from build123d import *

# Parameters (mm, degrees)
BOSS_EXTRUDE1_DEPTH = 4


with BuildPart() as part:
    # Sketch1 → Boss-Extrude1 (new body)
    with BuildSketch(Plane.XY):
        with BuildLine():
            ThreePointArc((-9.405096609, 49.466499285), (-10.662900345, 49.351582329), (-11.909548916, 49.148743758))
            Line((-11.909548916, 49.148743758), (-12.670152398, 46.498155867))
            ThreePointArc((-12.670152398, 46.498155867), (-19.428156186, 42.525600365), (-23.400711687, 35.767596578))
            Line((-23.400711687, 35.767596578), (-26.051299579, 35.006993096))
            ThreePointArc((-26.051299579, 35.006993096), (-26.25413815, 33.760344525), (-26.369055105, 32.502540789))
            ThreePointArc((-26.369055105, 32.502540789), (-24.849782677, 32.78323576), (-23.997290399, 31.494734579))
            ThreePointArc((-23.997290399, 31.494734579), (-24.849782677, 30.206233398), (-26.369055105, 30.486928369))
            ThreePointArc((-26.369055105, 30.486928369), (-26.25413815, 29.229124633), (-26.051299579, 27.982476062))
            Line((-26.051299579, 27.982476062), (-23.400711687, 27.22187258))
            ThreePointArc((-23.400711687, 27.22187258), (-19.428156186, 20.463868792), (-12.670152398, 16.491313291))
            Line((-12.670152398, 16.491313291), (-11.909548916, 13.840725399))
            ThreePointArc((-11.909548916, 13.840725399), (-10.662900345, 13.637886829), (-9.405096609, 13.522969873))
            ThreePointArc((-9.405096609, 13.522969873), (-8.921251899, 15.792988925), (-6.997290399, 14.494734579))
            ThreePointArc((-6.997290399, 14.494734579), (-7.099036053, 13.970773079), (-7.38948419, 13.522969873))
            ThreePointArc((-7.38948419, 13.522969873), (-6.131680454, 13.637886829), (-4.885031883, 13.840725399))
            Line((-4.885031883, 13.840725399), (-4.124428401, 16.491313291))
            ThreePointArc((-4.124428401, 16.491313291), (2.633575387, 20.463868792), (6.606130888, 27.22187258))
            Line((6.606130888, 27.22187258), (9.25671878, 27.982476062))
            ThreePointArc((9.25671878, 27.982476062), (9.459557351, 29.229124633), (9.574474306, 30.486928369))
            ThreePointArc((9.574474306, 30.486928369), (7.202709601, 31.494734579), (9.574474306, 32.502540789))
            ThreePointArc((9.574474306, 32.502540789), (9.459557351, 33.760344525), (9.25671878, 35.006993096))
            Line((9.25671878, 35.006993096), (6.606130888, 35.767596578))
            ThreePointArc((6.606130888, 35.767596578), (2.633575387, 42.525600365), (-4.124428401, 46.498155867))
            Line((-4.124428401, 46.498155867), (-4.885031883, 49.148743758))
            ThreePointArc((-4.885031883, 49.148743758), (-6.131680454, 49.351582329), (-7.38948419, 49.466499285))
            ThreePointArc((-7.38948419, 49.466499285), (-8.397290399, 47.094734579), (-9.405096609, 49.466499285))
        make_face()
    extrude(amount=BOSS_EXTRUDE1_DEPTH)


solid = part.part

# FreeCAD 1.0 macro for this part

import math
import FreeCAD as App
import Part
import Sketcher

doc = App.newDocument("Part")
body = doc.addObject("PartDesign::Body", "Body")

# Sketch on XY plane
sketch1 = doc.addObject("Sketcher::SketchObject", "Sketch")
body.addObject(sketch1)
sketch1.AttachmentSupport = (doc.XY_Plane, [""])
sketch1.MapMode = "FlatFace"
sketch1.addGeometry(Part.ArcOfCircle(Part.Circle(App.Vector(-8.4, 31.5, 0), App.Vector(0, 0, 1), 18), math.radians(93.21), math.radians(101.25)), False)
sketch1.addGeometry(Part.LineSegment(App.Vector(-11.9, 49.1, 0), App.Vector(-12.7, 46.5, 0)), False)
sketch1.addGeometry(Part.ArcOfCircle(Part.Circle(App.Vector(-8.4, 31.5, 0), App.Vector(0, 0, 1), 15.6), math.radians(106), math.radians(164)), False)
sketch1.addGeometry(Part.LineSegment(App.Vector(-23.4, 35.8, 0), App.Vector(-26.1, 35, 0)), False)
sketch1.addGeometry(Part.ArcOfCircle(Part.Circle(App.Vector(-8.4, 31.5, 0), App.Vector(0, 0, 1), 18), math.radians(168.75), math.radians(176.79)), False)
sketch1.addGeometry(Part.ArcOfCircle(Part.Circle(App.Vector(-25.4, 31.5, 0), App.Vector(0, 0, 1), 1.4), math.radians(0), math.radians(134)), False)
sketch1.addGeometry(Part.ArcOfCircle(Part.Circle(App.Vector(-25.4, 31.5, 0), App.Vector(0, 0, 1), 1.4), math.radians(-134), math.radians(0)), False)
sketch1.addGeometry(Part.ArcOfCircle(Part.Circle(App.Vector(-8.4, 31.5, 0), App.Vector(0, 0, 1), 18), math.radians(-176.79), math.radians(-168.75)), False)
sketch1.addGeometry(Part.LineSegment(App.Vector(-26.1, 28, 0), App.Vector(-23.4, 27.2, 0)), False)
sketch1.addGeometry(Part.ArcOfCircle(Part.Circle(App.Vector(-8.4, 31.5, 0), App.Vector(0, 0, 1), 15.6), math.radians(-164), math.radians(-106)), False)
sketch1.addGeometry(Part.LineSegment(App.Vector(-12.7, 16.5, 0), App.Vector(-11.9, 13.8, 0)), False)
sketch1.addGeometry(Part.ArcOfCircle(Part.Circle(App.Vector(-8.4, 31.5, 0), App.Vector(0, 0, 1), 18), math.radians(-101.25), math.radians(-93.21)), False)
sketch1.addGeometry(Part.ArcOfCircle(Part.Circle(App.Vector(-8.4, 14.5, 0), App.Vector(0, 0, 1), 1.4), math.radians(0), math.radians(224)), False)
sketch1.addGeometry(Part.ArcOfCircle(Part.Circle(App.Vector(-8.4, 14.5, 0), App.Vector(0, 0, 1), 1.4), math.radians(-44), math.radians(0)), False)
sketch1.addGeometry(Part.ArcOfCircle(Part.Circle(App.Vector(-8.4, 31.5, 0), App.Vector(0, 0, 1), 18), math.radians(-86.79), math.radians(-78.75)), False)
sketch1.addGeometry(Part.LineSegment(App.Vector(-4.9, 13.8, 0), App.Vector(-4.1, 16.5, 0)), False)
sketch1.addGeometry(Part.ArcOfCircle(Part.Circle(App.Vector(-8.4, 31.5, 0), App.Vector(0, 0, 1), 15.6), math.radians(-74), math.radians(-16)), False)
sketch1.addGeometry(Part.LineSegment(App.Vector(6.6, 27.2, 0), App.Vector(9.3, 28, 0)), False)
sketch1.addGeometry(Part.ArcOfCircle(Part.Circle(App.Vector(-8.4, 31.5, 0), App.Vector(0, 0, 1), 18), math.radians(-11.25), math.radians(-3.21)), False)
sketch1.addGeometry(Part.ArcOfCircle(Part.Circle(App.Vector(8.6, 31.5, 0), App.Vector(0, 0, 1), 1.4), math.radians(46), math.radians(314)), False)
sketch1.addGeometry(Part.ArcOfCircle(Part.Circle(App.Vector(-8.4, 31.5, 0), App.Vector(0, 0, 1), 18), math.radians(3.21), math.radians(11.25)), False)
sketch1.addGeometry(Part.LineSegment(App.Vector(9.3, 35, 0), App.Vector(6.6, 35.8, 0)), False)
sketch1.addGeometry(Part.ArcOfCircle(Part.Circle(App.Vector(-8.4, 31.5, 0), App.Vector(0, 0, 1), 15.6), math.radians(16), math.radians(74)), False)
sketch1.addGeometry(Part.LineSegment(App.Vector(-4.1, 46.5, 0), App.Vector(-4.9, 49.1, 0)), False)
sketch1.addGeometry(Part.ArcOfCircle(Part.Circle(App.Vector(-8.4, 31.5, 0), App.Vector(0, 0, 1), 18), math.radians(78.75), math.radians(86.79)), False)
sketch1.addGeometry(Part.ArcOfCircle(Part.Circle(App.Vector(-8.4, 48.5, 0), App.Vector(0, 0, 1), 1.4), math.radians(136), math.radians(404)), False)
sketch1.addConstraint(Sketcher.Constraint("Coincident", 0, 2, 1, 1))
sketch1.addConstraint(Sketcher.Constraint("Coincident", 1, 2, 2, 1))
sketch1.addConstraint(Sketcher.Constraint("Coincident", 2, 2, 3, 1))
sketch1.addConstraint(Sketcher.Constraint("Coincident", 3, 2, 4, 1))
sketch1.addConstraint(Sketcher.Constraint("Coincident", 4, 2, 5, 2))
sketch1.addConstraint(Sketcher.Constraint("Tangent", 5, 1, 6, 2))
sketch1.addConstraint(Sketcher.Constraint("Coincident", 6, 1, 7, 1))
sketch1.addConstraint(Sketcher.Constraint("Coincident", 7, 2, 8, 1))
sketch1.addConstraint(Sketcher.Constraint("Coincident", 8, 2, 9, 1))
sketch1.addConstraint(Sketcher.Constraint("Coincident", 9, 2, 10, 1))
sketch1.addConstraint(Sketcher.Constraint("Coincident", 10, 2, 11, 1))
sketch1.addConstraint(Sketcher.Constraint("Coincident", 11, 2, 12, 2))
sketch1.addConstraint(Sketcher.Constraint("Tangent", 12, 1, 13, 2))
sketch1.addConstraint(Sketcher.Constraint("Coincident", 13, 1, 14, 1))
sketch1.addConstraint(Sketcher.Constraint("Coincident", 14, 2, 15, 1))
sketch1.addConstraint(Sketcher.Constraint("Coincident", 15, 2, 16, 1))
sketch1.addConstraint(Sketcher.Constraint("Coincident", 16, 2, 17, 1))
sketch1.addConstraint(Sketcher.Constraint("Coincident", 17, 2, 18, 1))
sketch1.addConstraint(Sketcher.Constraint("Coincident", 18, 2, 19, 2))
sketch1.addConstraint(Sketcher.Constraint("Coincident", 19, 1, 20, 1))
sketch1.addConstraint(Sketcher.Constraint("Coincident", 20, 2, 21, 1))
sketch1.addConstraint(Sketcher.Constraint("Coincident", 21, 2, 22, 1))
sketch1.addConstraint(Sketcher.Constraint("Coincident", 22, 2, 23, 1))
sketch1.addConstraint(Sketcher.Constraint("Coincident", 23, 2, 24, 1))
sketch1.addConstraint(Sketcher.Constraint("Coincident", 24, 2, 25, 2))
sketch1.addConstraint(Sketcher.Constraint("Coincident", 25, 1, 0, 1))
sketch1.addConstraint(Sketcher.Constraint("Coincident", 2, 3, 0, 3))
sketch1.addConstraint(Sketcher.Constraint("Coincident", 4, 3, 0, 3))
sketch1.addConstraint(Sketcher.Constraint("Coincident", 7, 3, 0, 3))
sketch1.addConstraint(Sketcher.Constraint("Coincident", 9, 3, 0, 3))
sketch1.addConstraint(Sketcher.Constraint("Coincident", 11, 3, 0, 3))
sketch1.addConstraint(Sketcher.Constraint("Coincident", 14, 3, 0, 3))
sketch1.addConstraint(Sketcher.Constraint("Coincident", 16, 3, 0, 3))
sketch1.addConstraint(Sketcher.Constraint("Coincident", 18, 3, 0, 3))
sketch1.addConstraint(Sketcher.Constraint("Coincident", 20, 3, 0, 3))
sketch1.addConstraint(Sketcher.Constraint("Coincident", 22, 3, 0, 3))
sketch1.addConstraint(Sketcher.Constraint("Coincident", 24, 3, 0, 3))
sketch1.addConstraint(Sketcher.Constraint("Equal", 0, 4))
sketch1.addConstraint(Sketcher.Constraint("Equal", 5, 6))
sketch1.addConstraint(Sketcher.Constraint("Equal", 4, 7))
sketch1.addConstraint(Sketcher.Constraint("Equal", 2, 9))
sketch1.addConstraint(Sketcher.Constraint("Equal", 7, 11))
sketch1.addConstraint(Sketcher.Constraint("Equal", 6, 12))
sketch1.addConstraint(Sketcher.Constraint("Equal", 12, 13))
sketch1.addConstraint(Sketcher.Constraint("Equal", 11, 14))
sketch1.addConstraint(Sketcher.Constraint("Equal", 9, 16))
sketch1.addConstraint(Sketcher.Constraint("Equal", 14, 18))
sketch1.addConstraint(Sketcher.Constraint("Equal", 13, 19))
sketch1.addConstraint(Sketcher.Constraint("Equal", 18, 20))
sketch1.addConstraint(Sketcher.Constraint("Equal", 16, 22))
sketch1.addConstraint(Sketcher.Constraint("Equal", 20, 24))
sketch1.addConstraint(Sketcher.Constraint("Equal", 19, 25))
sketch1.addConstraint(Sketcher.Constraint("Perpendicular", 1, 8))
sketch1.addConstraint(Sketcher.Constraint("Perpendicular", 3, 10))
sketch1.addConstraint(Sketcher.Constraint("Perpendicular", 8, 15))
sketch1.addConstraint(Sketcher.Constraint("Perpendicular", 10, 17))
sketch1.addConstraint(Sketcher.Constraint("Perpendicular", 15, 21))
sketch1.addConstraint(Sketcher.Constraint("Perpendicular", 17, 23))
sketch1.addConstraint(Sketcher.Constraint("Horizontal", 4, 3, 5, 3))
sketch1.addConstraint(Sketcher.Constraint("Horizontal", 18, 3, 19, 3))
sketch1.addConstraint(Sketcher.Constraint("Horizontal", 24, 3, 5, 1))
sketch1.addConstraint(Sketcher.Constraint("Horizontal", 13, 3, 12, 1))
sketch1.addConstraint(Sketcher.Constraint("Horizontal", 11, 2, 13, 1))
sketch1.addConstraint(Sketcher.Constraint("Horizontal", 10, 2, 14, 2))
sketch1.addConstraint(Sketcher.Constraint("Horizontal", 9, 2, 15, 2))
sketch1.addConstraint(Sketcher.Constraint("Horizontal", 8, 2, 16, 2))
sketch1.addConstraint(Sketcher.Constraint("Horizontal", 6, 1, 18, 2))
sketch1.addConstraint(Sketcher.Constraint("Horizontal", 3, 2, 20, 2))
sketch1.addConstraint(Sketcher.Constraint("Horizontal", 1, 2, 22, 2))
sketch1.addConstraint(Sketcher.Constraint("Horizontal", 24, 2, 25, 1))
sketch1.addConstraint(Sketcher.Constraint("Vertical", 3, 2, 7, 2))
sketch1.addConstraint(Sketcher.Constraint("Vertical", 1, 2, 9, 2))
sketch1.addConstraint(Sketcher.Constraint("Vertical", 13, 1, 24, 2))
sketch1.addConstraint(Sketcher.Constraint("Equal", 1, 3))
sketch1.addConstraint(Sketcher.Constraint("Radius", 0, 18.0))
sketch1.addConstraint(Sketcher.Constraint("Radius", 2, 15.6))
sketch1.addConstraint(Sketcher.Constraint("Radius", 5, 1.4))
sketch1.addConstraint(Sketcher.Constraint("DistanceX", 5, 3, 4, 3, 17.0))
sketch1.addConstraint(Sketcher.Constraint("DistanceY", 12, 3, 7, 3, 17.0))
sketch1.addConstraint(Sketcher.Constraint("DistanceX", 3, 2, -1, 1, 26.0513))
sketch1.addConstraint(Sketcher.Constraint("DistanceY", -1, 1, 24, 2, 49.466499))
sketch1.addConstraint(Sketcher.Constraint("Distance", 1, 2.757559))
sketch1.addConstraint(Sketcher.Constraint("DistanceX", 0, 3, -1, 1, 8.39729))
pad1 = doc.addObject("PartDesign::Pad", "Pad")
body.addObject(pad1)
pad1.Profile = sketch1
pad1.Length = 4

doc.recompute()
